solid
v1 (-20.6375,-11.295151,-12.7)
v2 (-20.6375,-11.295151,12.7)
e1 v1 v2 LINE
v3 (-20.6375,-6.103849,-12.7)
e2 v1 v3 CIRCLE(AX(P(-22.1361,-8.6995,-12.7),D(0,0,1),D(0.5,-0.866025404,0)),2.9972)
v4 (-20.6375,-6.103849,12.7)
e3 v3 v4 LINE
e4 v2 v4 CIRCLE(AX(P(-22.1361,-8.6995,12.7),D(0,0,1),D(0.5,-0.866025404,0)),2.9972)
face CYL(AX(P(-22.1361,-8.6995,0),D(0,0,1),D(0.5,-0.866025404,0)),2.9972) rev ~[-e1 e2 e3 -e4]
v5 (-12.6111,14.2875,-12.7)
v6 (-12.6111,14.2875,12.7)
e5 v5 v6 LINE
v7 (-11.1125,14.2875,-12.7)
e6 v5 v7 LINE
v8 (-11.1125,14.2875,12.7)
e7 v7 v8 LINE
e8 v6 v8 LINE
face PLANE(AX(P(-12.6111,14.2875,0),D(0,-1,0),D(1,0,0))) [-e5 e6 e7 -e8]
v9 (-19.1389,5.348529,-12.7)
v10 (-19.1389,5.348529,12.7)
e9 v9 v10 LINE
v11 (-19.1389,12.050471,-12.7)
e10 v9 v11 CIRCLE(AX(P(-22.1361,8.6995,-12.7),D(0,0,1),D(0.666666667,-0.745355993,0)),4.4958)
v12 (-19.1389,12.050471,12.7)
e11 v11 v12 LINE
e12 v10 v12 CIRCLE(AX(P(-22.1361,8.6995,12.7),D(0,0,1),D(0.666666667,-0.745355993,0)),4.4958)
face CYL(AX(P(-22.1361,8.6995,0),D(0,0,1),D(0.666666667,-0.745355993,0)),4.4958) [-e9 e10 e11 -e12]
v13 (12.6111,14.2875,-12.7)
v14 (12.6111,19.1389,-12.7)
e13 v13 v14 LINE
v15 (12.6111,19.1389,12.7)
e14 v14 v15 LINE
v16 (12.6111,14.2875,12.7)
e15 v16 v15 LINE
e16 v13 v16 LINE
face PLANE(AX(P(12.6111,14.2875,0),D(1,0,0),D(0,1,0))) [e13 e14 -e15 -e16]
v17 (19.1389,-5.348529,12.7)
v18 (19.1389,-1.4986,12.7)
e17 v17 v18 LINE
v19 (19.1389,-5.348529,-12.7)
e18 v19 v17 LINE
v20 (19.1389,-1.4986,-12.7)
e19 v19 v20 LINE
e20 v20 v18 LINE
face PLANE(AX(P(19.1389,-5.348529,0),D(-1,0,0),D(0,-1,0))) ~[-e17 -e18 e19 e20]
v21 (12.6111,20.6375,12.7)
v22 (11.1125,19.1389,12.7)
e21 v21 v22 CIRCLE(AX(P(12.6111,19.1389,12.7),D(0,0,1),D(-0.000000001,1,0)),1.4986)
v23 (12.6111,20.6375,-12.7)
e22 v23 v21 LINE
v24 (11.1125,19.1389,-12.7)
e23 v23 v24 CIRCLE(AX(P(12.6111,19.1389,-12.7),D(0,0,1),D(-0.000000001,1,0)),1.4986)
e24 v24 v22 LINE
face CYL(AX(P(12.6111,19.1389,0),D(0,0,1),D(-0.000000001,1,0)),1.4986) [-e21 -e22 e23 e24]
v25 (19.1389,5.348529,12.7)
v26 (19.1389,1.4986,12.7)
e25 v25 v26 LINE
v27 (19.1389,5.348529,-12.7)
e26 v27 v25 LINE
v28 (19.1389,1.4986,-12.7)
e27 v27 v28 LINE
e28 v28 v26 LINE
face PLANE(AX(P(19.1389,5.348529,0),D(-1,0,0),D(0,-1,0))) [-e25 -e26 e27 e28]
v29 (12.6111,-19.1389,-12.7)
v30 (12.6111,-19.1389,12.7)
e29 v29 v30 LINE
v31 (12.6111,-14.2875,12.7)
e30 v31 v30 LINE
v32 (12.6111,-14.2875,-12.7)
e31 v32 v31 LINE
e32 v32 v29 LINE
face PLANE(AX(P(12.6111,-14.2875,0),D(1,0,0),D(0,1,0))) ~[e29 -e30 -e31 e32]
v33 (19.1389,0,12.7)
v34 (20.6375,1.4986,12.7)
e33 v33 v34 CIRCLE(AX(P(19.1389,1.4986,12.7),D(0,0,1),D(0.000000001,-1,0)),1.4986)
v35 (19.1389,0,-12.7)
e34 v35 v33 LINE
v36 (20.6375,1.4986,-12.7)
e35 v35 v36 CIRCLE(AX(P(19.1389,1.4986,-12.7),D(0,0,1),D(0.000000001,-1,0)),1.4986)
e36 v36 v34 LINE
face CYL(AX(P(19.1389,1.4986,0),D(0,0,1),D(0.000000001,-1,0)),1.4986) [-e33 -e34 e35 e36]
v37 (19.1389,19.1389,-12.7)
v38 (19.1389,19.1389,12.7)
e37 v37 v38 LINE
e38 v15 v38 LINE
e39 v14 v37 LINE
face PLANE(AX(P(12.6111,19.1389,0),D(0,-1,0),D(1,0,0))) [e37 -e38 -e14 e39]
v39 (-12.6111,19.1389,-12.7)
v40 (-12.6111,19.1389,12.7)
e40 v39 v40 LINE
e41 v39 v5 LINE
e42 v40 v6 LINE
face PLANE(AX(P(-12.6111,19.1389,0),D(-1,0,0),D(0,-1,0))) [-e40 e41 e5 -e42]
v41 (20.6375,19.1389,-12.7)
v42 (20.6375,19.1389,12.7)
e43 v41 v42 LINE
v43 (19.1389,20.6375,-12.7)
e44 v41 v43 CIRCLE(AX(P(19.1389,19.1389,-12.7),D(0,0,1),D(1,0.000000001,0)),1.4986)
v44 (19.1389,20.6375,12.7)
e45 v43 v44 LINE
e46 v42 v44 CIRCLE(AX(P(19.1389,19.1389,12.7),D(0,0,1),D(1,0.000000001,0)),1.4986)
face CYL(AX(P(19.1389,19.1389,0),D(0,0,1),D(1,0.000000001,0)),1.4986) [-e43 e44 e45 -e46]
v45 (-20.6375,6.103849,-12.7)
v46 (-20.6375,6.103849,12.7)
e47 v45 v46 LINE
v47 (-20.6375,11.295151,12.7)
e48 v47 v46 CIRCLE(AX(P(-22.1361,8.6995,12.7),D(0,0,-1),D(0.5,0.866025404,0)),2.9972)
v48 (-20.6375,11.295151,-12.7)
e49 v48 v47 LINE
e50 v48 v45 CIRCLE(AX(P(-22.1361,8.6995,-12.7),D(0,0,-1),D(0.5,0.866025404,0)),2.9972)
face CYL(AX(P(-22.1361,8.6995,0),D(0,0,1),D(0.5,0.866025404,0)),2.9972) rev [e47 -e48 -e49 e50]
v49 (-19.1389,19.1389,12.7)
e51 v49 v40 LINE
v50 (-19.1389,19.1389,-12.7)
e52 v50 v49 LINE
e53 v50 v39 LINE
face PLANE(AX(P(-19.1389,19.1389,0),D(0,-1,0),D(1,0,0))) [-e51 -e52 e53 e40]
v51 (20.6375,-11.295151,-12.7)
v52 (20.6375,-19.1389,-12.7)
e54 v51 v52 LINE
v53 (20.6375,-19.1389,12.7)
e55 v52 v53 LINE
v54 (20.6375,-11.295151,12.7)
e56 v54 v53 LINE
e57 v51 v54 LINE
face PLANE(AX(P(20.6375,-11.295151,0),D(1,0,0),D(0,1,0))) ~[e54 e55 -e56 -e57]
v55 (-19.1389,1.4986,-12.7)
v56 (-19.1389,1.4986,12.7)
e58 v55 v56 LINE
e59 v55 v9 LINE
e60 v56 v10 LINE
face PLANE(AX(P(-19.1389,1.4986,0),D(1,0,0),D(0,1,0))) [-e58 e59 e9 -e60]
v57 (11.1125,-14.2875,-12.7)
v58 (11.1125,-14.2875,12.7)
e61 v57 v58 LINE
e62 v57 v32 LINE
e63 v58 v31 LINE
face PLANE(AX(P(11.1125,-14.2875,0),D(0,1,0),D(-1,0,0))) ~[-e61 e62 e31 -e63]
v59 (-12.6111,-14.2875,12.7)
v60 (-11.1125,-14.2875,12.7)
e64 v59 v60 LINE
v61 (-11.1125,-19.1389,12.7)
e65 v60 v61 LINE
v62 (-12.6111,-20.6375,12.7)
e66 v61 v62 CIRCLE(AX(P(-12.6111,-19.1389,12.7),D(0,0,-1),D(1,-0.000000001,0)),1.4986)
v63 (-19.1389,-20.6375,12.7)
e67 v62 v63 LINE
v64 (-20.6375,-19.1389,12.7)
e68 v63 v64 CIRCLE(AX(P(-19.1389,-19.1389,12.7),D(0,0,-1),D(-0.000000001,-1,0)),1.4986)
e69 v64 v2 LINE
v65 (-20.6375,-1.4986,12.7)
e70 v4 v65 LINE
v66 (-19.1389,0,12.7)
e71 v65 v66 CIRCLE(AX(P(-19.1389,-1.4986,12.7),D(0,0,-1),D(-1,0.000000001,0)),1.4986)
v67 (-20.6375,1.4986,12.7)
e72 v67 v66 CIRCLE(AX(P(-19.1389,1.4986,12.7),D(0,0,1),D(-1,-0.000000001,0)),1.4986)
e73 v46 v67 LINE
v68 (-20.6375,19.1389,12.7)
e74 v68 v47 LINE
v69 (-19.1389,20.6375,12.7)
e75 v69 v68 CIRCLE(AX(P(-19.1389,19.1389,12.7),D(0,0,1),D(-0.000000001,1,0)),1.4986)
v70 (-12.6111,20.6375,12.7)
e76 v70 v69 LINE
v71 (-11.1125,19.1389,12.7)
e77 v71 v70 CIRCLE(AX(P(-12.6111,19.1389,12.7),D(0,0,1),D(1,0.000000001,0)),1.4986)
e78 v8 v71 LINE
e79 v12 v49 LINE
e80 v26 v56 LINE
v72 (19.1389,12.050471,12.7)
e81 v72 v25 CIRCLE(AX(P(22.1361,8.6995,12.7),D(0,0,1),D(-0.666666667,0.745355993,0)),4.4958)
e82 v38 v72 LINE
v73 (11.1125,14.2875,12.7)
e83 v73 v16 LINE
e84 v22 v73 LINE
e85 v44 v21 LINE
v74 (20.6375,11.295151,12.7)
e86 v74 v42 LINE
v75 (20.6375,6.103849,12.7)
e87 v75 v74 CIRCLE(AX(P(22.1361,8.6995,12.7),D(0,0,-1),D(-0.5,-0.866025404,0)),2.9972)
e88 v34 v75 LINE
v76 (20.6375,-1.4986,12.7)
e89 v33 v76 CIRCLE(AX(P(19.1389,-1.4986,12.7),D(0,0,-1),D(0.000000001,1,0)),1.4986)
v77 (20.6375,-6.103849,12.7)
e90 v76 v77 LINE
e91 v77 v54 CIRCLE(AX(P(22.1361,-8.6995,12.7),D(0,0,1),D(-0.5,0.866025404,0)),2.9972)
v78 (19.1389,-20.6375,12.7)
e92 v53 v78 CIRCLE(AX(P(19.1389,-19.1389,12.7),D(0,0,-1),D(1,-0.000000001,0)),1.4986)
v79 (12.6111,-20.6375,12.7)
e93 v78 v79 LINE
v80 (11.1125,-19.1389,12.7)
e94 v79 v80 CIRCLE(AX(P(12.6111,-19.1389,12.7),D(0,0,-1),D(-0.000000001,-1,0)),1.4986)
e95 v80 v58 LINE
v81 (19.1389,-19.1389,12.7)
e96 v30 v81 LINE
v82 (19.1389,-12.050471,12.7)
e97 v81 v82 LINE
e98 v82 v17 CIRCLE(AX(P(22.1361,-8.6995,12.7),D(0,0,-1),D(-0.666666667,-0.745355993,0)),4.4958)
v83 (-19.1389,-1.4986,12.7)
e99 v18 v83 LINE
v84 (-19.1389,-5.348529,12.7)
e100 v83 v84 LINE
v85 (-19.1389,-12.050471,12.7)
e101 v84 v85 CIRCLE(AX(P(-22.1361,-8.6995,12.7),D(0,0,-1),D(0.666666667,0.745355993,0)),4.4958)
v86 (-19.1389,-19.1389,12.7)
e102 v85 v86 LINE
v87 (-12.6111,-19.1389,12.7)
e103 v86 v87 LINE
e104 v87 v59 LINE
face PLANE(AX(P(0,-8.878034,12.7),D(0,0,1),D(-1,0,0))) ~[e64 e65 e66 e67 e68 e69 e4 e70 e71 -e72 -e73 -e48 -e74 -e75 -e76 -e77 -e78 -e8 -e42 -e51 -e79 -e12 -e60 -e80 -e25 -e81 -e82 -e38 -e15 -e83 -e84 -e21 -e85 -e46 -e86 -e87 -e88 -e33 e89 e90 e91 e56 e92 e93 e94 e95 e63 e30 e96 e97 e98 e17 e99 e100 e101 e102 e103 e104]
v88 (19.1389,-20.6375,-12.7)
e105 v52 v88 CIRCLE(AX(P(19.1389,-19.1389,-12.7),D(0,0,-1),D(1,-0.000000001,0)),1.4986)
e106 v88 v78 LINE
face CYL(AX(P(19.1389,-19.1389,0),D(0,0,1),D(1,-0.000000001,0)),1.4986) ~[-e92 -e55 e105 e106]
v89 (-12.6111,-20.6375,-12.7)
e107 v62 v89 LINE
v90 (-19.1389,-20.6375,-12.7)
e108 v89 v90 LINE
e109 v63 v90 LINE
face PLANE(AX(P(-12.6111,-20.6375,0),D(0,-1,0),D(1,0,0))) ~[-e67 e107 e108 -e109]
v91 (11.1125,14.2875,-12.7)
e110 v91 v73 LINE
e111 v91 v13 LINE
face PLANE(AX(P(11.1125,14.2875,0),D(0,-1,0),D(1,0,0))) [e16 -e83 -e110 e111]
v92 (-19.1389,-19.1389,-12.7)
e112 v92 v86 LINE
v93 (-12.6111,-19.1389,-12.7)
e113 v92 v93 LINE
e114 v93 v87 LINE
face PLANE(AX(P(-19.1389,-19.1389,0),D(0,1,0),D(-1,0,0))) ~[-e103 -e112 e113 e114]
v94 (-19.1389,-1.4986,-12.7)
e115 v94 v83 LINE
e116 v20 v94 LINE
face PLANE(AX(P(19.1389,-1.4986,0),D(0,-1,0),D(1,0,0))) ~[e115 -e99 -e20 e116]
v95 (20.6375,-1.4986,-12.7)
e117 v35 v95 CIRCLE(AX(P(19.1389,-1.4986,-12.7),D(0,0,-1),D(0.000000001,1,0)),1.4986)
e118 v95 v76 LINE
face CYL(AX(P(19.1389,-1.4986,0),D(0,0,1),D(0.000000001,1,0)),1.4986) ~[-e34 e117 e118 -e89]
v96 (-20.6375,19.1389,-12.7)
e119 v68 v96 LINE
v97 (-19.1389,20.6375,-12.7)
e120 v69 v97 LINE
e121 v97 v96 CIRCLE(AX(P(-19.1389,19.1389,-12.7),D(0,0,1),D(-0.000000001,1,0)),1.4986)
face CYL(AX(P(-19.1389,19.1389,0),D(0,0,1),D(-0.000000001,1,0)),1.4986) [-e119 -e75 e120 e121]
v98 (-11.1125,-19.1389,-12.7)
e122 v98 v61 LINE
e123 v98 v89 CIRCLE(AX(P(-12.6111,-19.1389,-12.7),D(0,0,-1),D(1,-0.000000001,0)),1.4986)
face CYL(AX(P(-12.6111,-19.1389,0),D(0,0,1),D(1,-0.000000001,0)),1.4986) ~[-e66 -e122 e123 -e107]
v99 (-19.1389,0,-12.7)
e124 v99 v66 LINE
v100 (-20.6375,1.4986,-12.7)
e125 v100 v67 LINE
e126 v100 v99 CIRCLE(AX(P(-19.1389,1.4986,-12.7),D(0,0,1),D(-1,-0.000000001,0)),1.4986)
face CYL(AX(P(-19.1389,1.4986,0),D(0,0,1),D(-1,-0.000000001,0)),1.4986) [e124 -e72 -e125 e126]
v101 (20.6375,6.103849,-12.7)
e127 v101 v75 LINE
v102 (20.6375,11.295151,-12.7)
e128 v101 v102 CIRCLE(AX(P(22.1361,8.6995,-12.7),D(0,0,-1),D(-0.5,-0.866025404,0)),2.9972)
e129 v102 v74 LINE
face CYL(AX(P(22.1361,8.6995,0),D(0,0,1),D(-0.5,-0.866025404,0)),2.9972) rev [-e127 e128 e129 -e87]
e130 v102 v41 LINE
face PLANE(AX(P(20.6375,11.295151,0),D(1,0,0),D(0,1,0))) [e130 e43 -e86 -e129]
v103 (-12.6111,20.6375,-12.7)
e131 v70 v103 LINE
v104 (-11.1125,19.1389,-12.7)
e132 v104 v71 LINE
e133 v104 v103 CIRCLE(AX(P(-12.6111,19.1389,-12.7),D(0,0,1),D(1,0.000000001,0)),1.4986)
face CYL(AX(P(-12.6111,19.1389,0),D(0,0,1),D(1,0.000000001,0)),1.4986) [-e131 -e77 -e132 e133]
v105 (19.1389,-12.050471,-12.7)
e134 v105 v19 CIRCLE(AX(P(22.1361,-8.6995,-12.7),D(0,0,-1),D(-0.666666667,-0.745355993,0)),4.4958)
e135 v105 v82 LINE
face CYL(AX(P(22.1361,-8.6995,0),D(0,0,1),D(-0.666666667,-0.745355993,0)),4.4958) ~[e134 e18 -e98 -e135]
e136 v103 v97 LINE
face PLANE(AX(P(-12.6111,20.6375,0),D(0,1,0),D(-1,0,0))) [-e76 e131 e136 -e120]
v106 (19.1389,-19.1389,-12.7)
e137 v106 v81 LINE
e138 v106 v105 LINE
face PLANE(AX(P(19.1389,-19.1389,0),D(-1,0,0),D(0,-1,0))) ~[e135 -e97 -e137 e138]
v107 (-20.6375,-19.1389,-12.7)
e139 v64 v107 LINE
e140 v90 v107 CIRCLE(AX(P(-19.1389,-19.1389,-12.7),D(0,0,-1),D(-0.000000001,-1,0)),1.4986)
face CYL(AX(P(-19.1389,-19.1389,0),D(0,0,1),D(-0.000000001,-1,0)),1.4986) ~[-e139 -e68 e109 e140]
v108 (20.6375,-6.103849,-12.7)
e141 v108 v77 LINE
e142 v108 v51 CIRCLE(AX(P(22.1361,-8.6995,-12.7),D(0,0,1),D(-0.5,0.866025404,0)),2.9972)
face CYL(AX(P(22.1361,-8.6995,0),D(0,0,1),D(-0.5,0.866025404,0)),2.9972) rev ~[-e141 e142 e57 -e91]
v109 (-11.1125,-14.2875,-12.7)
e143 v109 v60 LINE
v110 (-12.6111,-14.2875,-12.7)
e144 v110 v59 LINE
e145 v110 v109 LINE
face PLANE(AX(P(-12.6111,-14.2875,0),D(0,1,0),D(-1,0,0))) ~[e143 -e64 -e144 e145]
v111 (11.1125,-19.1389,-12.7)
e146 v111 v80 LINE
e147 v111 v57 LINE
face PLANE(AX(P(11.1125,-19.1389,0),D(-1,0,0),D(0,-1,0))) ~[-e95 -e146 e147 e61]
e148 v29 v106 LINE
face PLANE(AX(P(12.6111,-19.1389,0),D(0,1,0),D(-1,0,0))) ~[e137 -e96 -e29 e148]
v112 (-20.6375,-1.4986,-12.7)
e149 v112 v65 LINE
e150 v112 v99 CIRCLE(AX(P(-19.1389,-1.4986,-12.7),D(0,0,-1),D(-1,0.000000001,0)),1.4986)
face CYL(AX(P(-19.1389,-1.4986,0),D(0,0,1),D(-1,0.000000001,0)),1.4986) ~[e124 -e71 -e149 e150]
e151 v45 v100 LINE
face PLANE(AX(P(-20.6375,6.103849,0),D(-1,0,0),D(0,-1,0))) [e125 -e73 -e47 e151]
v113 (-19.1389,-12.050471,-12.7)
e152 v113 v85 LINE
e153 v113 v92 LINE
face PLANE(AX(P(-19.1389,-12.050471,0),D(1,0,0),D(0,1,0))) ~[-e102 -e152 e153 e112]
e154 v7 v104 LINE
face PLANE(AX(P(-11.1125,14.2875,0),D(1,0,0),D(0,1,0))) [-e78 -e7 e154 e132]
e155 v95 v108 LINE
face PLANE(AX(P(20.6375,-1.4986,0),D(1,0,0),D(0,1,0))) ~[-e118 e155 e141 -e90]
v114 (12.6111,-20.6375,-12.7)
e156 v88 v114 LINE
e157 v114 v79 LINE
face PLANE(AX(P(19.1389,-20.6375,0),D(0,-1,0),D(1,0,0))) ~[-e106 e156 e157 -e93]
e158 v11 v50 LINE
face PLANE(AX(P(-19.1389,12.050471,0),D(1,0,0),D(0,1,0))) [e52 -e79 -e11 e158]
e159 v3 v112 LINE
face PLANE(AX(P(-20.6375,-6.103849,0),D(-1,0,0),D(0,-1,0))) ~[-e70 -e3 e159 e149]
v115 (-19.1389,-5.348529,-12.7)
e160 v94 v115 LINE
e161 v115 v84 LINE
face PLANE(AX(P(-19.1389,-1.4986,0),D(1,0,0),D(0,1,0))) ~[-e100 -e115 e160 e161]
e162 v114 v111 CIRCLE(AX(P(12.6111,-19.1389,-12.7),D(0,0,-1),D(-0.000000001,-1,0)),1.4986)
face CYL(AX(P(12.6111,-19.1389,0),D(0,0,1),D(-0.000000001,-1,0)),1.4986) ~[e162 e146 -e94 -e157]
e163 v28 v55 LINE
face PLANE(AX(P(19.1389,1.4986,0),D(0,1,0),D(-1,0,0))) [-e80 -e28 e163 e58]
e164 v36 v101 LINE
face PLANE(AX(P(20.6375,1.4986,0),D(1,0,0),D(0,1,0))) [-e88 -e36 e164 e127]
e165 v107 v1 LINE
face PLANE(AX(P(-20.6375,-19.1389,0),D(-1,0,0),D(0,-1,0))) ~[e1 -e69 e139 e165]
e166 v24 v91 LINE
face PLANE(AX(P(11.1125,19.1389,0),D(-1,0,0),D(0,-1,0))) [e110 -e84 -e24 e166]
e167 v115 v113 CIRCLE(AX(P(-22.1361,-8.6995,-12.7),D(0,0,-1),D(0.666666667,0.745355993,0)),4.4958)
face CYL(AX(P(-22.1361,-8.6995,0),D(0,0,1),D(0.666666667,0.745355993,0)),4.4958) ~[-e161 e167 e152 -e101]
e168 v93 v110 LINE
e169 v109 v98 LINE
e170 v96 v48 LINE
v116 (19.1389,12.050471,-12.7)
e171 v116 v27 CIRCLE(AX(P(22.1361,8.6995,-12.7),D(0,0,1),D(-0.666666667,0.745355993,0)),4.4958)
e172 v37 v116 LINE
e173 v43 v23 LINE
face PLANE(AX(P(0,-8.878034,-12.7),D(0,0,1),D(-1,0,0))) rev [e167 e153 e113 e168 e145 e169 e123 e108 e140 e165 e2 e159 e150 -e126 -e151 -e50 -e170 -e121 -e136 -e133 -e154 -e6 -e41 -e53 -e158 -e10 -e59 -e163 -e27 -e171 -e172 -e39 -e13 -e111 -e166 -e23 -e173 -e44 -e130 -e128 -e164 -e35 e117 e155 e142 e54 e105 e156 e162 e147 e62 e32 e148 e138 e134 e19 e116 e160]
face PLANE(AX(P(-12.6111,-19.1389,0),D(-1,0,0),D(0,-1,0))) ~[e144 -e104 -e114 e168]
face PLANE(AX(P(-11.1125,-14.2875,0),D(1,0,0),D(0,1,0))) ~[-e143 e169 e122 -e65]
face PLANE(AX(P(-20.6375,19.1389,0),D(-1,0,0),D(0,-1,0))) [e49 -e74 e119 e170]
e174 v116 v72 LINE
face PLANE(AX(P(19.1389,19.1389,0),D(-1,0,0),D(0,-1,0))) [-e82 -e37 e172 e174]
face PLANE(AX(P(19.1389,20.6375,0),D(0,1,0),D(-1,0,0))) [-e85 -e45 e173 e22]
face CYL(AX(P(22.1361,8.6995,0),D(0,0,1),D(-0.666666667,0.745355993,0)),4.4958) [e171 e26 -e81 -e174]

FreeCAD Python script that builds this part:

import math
import FreeCAD as App
import Part
import Sketcher

V = App.Vector
Q = App.Units.Quantity

doc = App.newDocument("Part")
body = doc.addObject("PartDesign::Body", "Body")

sketch1 = body.newObject("Sketcher::SketchObject", "Sketch")
sketch1.AttachmentSupport = (doc.getObject("XY_Plane"), [""])
sketch1.MapMode = "FlatFace"
sketch1.addGeometry([
    Part.LineSegment(V(-20.6, 19.1, 0), V(-20.6, 11.3, 0)),
    Part.ArcOfCircle(Part.Circle(V(-22.1, 8.7, 0), V(0, 0, 1), 3), math.radians(-60), math.radians(60)),
    Part.LineSegment(V(-20.6, 6.1, 0), V(-20.6, 1.5, 0)),
    Part.ArcOfCircle(Part.Circle(V(-19.1, 1.5, 0), V(0, 0, 1), 1.5), math.radians(-180), math.radians(-90)),
    Part.LineSegment(V(-19.1, 0, 0), V(19.1, 0, 0)),
    Part.ArcOfCircle(Part.Circle(V(19.1, 1.5, 0), V(0, 0, 1), 1.5), math.radians(-90), math.radians(0)),
    Part.LineSegment(V(20.6, 1.5, 0), V(20.6, 6.1, 0)),
    Part.ArcOfCircle(Part.Circle(V(22.1, 8.7, 0), V(0, 0, 1), 3), math.radians(120), math.radians(240)),
    Part.LineSegment(V(20.6, 11.3, 0), V(20.6, 19.1, 0)),
    Part.ArcOfCircle(Part.Circle(V(19.1, 19.1, 0), V(0, 0, 1), 1.5), math.radians(0), math.radians(90)),
    Part.LineSegment(V(19.1, 20.6, 0), V(12.6, 20.6, 0)),
    Part.ArcOfCircle(Part.Circle(V(12.6, 19.1, 0), V(0, 0, 1), 1.5), math.radians(90), math.radians(180)),
    Part.LineSegment(V(11.1, 19.1, 0), V(11.1, 14.3, 0)),
    Part.LineSegment(V(11.1, 14.3, 0), V(12.6, 14.3, 0)),
    Part.LineSegment(V(12.6, 14.3, 0), V(12.6, 19.1, 0)),
    Part.LineSegment(V(12.6, 19.1, 0), V(19.1, 19.1, 0)),
    Part.LineSegment(V(19.1, 19.1, 0), V(19.1, 12.1, 0)),
    Part.ArcOfCircle(Part.Circle(V(22.1, 8.7, 0), V(0, 0, 1), 4.5), math.radians(132), math.radians(228)),
    Part.LineSegment(V(19.1, 5.3, 0), V(19.1, 1.5, 0)),
    Part.LineSegment(V(19.1, 1.5, 0), V(-19.1, 1.5, 0)),
    Part.LineSegment(V(-19.1, 1.5, 0), V(-19.1, 5.3, 0)),
    Part.ArcOfCircle(Part.Circle(V(-22.1, 8.7, 0), V(0, 0, 1), 4.5), math.radians(-48), math.radians(48)),
    Part.LineSegment(V(-19.1, 12.1, 0), V(-19.1, 19.1, 0)),
    Part.LineSegment(V(-19.1, 19.1, 0), V(-12.6, 19.1, 0)),
    Part.LineSegment(V(-12.6, 19.1, 0), V(-12.6, 14.3, 0)),
    Part.LineSegment(V(-12.6, 14.3, 0), V(-11.1, 14.3, 0)),
    Part.LineSegment(V(-11.1, 14.3, 0), V(-11.1, 19.1, 0)),
    Part.ArcOfCircle(Part.Circle(V(-12.6, 19.1, 0), V(0, 0, 1), 1.5), math.radians(0), math.radians(90)),
    Part.LineSegment(V(-12.6, 20.6, 0), V(-19.1, 20.6, 0)),
    Part.ArcOfCircle(Part.Circle(V(-19.1, 19.1, 0), V(0, 0, 1), 1.5), math.radians(90), math.radians(180)),
], False)
sketch1.addConstraint([
    Sketcher.Constraint("Coincident", 0, 2, 1, 2),
    Sketcher.Constraint("Coincident", 1, 1, 2, 1),
    Sketcher.Constraint("Tangent", 2, 2, 3, 1),
    Sketcher.Constraint("Tangent", 3, 2, 4, 1),
    Sketcher.Constraint("Tangent", 4, 2, 5, 1),
    Sketcher.Constraint("Tangent", 5, 2, 6, 1),
    Sketcher.Constraint("Coincident", 6, 2, 7, 2),
    Sketcher.Constraint("Coincident", 7, 1, 8, 1),
    Sketcher.Constraint("Tangent", 8, 2, 9, 1),
    Sketcher.Constraint("Tangent", 9, 2, 10, 1),
    Sketcher.Constraint("Tangent", 10, 2, 11, 1),
    Sketcher.Constraint("Tangent", 11, 2, 12, 1),
    Sketcher.Constraint("Coincident", 12, 2, 13, 1),
    Sketcher.Constraint("Coincident", 13, 2, 14, 1),
    Sketcher.Constraint("Coincident", 14, 2, 15, 1),
    Sketcher.Constraint("Coincident", 15, 2, 16, 1),
    Sketcher.Constraint("Coincident", 16, 2, 17, 1),
    Sketcher.Constraint("Coincident", 17, 2, 18, 1),
    Sketcher.Constraint("Coincident", 18, 2, 19, 1),
    Sketcher.Constraint("Coincident", 19, 2, 20, 1),
    Sketcher.Constraint("Coincident", 20, 2, 21, 1),
    Sketcher.Constraint("Coincident", 21, 2, 22, 1),
    Sketcher.Constraint("Coincident", 22, 2, 23, 1),
    Sketcher.Constraint("Coincident", 23, 2, 24, 1),
    Sketcher.Constraint("Coincident", 24, 2, 25, 1),
    Sketcher.Constraint("Coincident", 25, 2, 26, 1),
    Sketcher.Constraint("Tangent", 26, 2, 27, 1),
    Sketcher.Constraint("Tangent", 27, 2, 28, 1),
    Sketcher.Constraint("Tangent", 28, 2, 29, 1),
    Sketcher.Constraint("Tangent", 29, 2, 0, 1),
    Sketcher.Constraint("Vertical", 0),
    Sketcher.Constraint("Vertical", 2),
    Sketcher.Constraint("Horizontal", 4),
    Sketcher.Constraint("Vertical", 6),
    Sketcher.Constraint("Vertical", 8),
    Sketcher.Constraint("Horizontal", 10),
    Sketcher.Constraint("Vertical", 12),
    Sketcher.Constraint("Horizontal", 13),
    Sketcher.Constraint("Vertical", 14),
    Sketcher.Constraint("Horizontal", 15),
    Sketcher.Constraint("Vertical", 16),
    Sketcher.Constraint("Vertical", 18),
    Sketcher.Constraint("Horizontal", 19),
    Sketcher.Constraint("Vertical", 20),
    Sketcher.Constraint("Vertical", 22),
    Sketcher.Constraint("Horizontal", 23),
    Sketcher.Constraint("Vertical", 24),
    Sketcher.Constraint("Horizontal", 25),
    Sketcher.Constraint("Vertical", 26),
    Sketcher.Constraint("Horizontal", 28),
    Sketcher.Constraint("Coincident", 17, 3, 7, 3),
    Sketcher.Constraint("Coincident", 21, 3, 1, 3),
    Sketcher.Constraint("Coincident", 14, 2, 11, 3),
    Sketcher.Constraint("Coincident", 15, 2, 9, 3),
    Sketcher.Constraint("Coincident", 18, 2, 5, 3),
    Sketcher.Constraint("Coincident", 19, 2, 3, 3),
    Sketcher.Constraint("Coincident", 22, 2, 29, 3),
    Sketcher.Constraint("Coincident", 23, 2, 27, 3),
    Sketcher.Constraint("Equal", 1, 7),
    Sketcher.Constraint("Equal", 5, 9),
    Sketcher.Constraint("Equal", 17, 21),
    Sketcher.Constraint("Equal", 11, 27),
    Sketcher.Constraint("Symmetric", 3, 2, 4, 2, -1, 1),
    Sketcher.Constraint("Symmetric", 1, 3, 7, 3, -2),
    Sketcher.Constraint("Symmetric", 11, 3, 27, 3, -2),
    Sketcher.Constraint("Horizontal", 0, 2, 7, 1),
    Sketcher.Constraint("Horizontal", 13, 2, 24, 2),
    Sketcher.Constraint("Vertical", 5, 3, 9, 3),
    Sketcher.Constraint("Radius", 1, Q("0.118 in")),
    Sketcher.Constraint("Radius", 3, Q("0.059 in")),
    Sketcher.Constraint("Radius", 17, Q("0.177 in")),
    Sketcher.Constraint("DistanceX", 4, 1, 4, 2, Q("1.507 in")),
    Sketcher.Constraint("DistanceX", 10, 2, 10, 1, Q("0.257 in")),
    Sketcher.Constraint("DistanceY", 12, 2, 12, 1, Q("0.191 in")),
    Sketcher.Constraint("DistanceY", 7, 3, 9, 2, Q("0.47 in")),
    Sketcher.Constraint("DistanceY", -1, 1, 9, 2, Q("0.8125 in")),
    Sketcher.Constraint("DistanceX", 1, 3, 3, 3, Q("0.118 in")),
])
pad1 = body.newObject("PartDesign::Pad", "Pad")
pad1.Profile = sketch1
pad1.Length = Q("1 in")
pad1.Midplane = True
doc.recompute()

mirrored = body.newObject("PartDesign::Mirrored", "Mirrored")
mirrored.Originals = [pad1]
mirrored.MirrorPlane = (doc.getObject("XZ_Plane"), [""])
body.Tip = mirrored

doc.recompute()
